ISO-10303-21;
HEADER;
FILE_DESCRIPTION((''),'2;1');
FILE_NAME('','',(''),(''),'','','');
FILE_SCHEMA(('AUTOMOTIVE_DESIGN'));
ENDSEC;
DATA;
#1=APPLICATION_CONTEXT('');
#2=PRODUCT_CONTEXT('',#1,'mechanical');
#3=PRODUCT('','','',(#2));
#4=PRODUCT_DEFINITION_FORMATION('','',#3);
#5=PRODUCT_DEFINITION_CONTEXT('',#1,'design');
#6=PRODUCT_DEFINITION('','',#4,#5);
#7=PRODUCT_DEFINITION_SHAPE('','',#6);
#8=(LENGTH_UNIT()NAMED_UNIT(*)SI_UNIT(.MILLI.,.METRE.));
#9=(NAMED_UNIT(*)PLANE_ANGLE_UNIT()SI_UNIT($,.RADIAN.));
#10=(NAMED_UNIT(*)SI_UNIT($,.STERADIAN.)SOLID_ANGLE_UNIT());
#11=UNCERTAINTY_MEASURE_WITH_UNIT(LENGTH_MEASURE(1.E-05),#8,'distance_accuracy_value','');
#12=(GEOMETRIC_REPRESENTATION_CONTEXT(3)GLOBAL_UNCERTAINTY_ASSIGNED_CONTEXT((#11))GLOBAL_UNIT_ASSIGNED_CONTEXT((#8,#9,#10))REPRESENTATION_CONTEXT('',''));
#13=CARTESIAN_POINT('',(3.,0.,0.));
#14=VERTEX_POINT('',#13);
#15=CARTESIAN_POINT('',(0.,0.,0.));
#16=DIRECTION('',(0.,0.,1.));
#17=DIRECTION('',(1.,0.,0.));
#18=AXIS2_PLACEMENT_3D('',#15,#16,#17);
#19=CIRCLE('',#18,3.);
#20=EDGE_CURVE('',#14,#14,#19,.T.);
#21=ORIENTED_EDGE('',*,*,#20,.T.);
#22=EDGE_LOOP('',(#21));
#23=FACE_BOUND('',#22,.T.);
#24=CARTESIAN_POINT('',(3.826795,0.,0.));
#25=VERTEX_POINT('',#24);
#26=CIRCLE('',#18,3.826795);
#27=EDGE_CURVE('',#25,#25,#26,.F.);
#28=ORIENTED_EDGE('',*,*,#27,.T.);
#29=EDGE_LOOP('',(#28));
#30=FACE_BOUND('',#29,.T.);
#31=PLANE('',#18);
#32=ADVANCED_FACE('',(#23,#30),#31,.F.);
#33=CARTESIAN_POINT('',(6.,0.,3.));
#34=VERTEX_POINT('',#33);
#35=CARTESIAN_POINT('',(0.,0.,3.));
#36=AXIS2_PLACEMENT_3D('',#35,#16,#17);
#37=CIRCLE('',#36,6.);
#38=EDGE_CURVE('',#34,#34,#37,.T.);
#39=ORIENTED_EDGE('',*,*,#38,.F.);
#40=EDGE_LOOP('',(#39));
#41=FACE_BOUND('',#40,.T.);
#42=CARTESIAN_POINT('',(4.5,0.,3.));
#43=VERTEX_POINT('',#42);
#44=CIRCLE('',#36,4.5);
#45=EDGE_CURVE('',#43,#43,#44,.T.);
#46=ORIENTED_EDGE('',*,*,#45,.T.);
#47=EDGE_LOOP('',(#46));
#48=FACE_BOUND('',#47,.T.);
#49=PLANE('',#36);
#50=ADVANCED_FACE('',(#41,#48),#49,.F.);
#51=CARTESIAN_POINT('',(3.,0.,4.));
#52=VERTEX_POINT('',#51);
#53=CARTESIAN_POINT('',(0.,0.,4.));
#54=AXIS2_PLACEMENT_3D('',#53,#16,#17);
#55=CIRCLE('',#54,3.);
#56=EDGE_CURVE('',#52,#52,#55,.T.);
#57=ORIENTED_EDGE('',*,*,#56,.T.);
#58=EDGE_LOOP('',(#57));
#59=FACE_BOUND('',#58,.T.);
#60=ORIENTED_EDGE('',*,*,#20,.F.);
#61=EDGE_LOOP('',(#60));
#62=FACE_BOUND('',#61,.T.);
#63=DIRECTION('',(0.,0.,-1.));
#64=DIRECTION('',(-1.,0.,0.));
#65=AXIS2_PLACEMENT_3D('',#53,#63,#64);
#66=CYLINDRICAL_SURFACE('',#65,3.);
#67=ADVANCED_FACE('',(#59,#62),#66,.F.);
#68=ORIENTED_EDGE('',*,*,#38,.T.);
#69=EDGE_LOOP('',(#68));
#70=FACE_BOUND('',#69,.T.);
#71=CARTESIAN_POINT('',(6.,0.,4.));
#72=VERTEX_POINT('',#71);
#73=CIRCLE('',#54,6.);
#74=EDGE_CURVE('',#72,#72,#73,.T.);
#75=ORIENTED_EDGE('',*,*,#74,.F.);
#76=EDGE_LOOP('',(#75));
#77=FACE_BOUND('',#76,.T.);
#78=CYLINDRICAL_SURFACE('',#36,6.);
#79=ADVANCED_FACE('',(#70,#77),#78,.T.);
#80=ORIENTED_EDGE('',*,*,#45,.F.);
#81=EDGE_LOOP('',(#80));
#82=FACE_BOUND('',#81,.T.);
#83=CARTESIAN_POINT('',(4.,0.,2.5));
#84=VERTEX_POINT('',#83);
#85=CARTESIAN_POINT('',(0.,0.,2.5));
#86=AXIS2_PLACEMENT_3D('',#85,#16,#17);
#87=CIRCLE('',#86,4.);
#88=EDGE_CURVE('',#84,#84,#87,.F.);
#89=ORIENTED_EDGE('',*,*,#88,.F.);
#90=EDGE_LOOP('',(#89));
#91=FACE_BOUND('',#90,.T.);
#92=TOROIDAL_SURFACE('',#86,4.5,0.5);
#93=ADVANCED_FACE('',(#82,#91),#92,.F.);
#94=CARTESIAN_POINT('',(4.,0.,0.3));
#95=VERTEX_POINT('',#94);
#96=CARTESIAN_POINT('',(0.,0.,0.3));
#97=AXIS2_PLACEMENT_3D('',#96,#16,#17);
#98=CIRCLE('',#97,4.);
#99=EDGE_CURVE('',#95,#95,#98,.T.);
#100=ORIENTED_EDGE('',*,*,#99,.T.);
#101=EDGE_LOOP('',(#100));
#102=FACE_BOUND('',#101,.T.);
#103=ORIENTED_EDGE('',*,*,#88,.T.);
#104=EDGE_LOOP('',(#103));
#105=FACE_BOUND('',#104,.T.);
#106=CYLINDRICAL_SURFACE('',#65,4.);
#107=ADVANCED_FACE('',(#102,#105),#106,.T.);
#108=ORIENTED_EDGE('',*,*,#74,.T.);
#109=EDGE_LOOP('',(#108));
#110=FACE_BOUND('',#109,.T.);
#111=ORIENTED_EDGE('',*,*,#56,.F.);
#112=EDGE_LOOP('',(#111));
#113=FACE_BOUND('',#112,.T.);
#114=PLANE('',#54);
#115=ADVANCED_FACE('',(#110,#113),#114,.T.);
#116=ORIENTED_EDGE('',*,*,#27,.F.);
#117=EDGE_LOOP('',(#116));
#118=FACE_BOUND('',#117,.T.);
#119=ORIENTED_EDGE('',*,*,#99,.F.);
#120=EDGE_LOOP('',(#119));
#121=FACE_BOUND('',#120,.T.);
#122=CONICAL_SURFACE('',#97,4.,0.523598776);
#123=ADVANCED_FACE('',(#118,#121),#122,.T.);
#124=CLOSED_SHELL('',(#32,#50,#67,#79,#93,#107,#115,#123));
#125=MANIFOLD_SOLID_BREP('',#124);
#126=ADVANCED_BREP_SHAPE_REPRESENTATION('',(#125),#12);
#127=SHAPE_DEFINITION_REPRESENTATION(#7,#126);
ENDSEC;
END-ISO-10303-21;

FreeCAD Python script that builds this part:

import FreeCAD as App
import Part
import Sketcher
from FreeCAD import Vector


def edges_at(feature, points):
    """Names of the edges that pass closest to the given points."""
    edges = feature.Shape.Edges
    near = lambda p: min(range(len(edges)), key=lambda i: edges[i].distToShape(Part.Vertex(*p))[0])
    return sorted({f"Edge{near(p) + 1}" for p in points})

doc = App.newDocument("Part")
params = doc.addObject("Spreadsheet::Sheet", "Params")
for row, (alias, value) in enumerate([
    ("sketch1_diameter", "8 mm"),
    ("sketch1_diameter2", "6 mm"),
    ("pad1_length", "4 mm"),
    ("sketch2_diameter", "12 mm"),
    ("sketch2_diameter2", "6 mm"),
    ("pad2_length", "1 mm"),
    ("fillet_radius", "0.5 mm"),
    ("chamfer_size", "0.3 mm"),
    ("chamfer_size2", "0.173205 mm"),
], start=1):
    params.set(f"A{row}", alias)
    params.set(f"B{row}", "=" + value)
    params.setAlias(f"B{row}", alias)

body = doc.addObject("PartDesign::Body", "Body")

# Sketch on XY plane
sketch1 = body.newObject("Sketcher::SketchObject", "Sketch")
sketch1.AttachmentSupport = (doc.getObject("XY_Plane"), [""])
sketch1.MapMode = "FlatFace"
sketch1.addGeometry([
    Part.Circle(Vector(0, 0, 0), Vector(0, 0, 1), 4),
    Part.Circle(Vector(0, 0, 0), Vector(0, 0, 1), 3),
], False)
sketch1.addConstraint([
    Sketcher.Constraint("Coincident", 0, 3, -1, 1),
    Sketcher.Constraint("Coincident", 1, 3, -1, 1),
    Sketcher.Constraint("Diameter", 0, 8.0),
    Sketcher.Constraint("Diameter", 1, 6.0),
])
sketch1.setExpression("Constraints[2]", "Params.sketch1_diameter")
sketch1.setExpression("Constraints[3]", "Params.sketch1_diameter2")
pad1 = body.newObject("PartDesign::Pad", "Pad")
pad1.Profile = sketch1
pad1.setExpression("Length", "Params.pad1_length")

# Sketch on XY plane
sketch2 = body.newObject("Sketcher::SketchObject", "Sketch001")
sketch2.AttachmentSupport = (doc.getObject("XY_Plane"), [""])
sketch2.MapMode = "FlatFace"
sketch2.AttachmentOffset = App.Placement(Vector(0, 0, 4), App.Rotation())
sketch2.addGeometry([
    Part.Circle(Vector(0, 0, 0), Vector(0, 0, 1), 6),
    Part.Circle(Vector(0, 0, 0), Vector(0, 0, 1), 3),
], False)
sketch2.addConstraint([
    Sketcher.Constraint("Coincident", 0, 3, -1, 1),
    Sketcher.Constraint("Coincident", 1, 3, -1, 1),
    Sketcher.Constraint("Diameter", 0, 12.0),
    Sketcher.Constraint("Diameter", 1, 6.0),
])
sketch2.setExpression("Constraints[2]", "Params.sketch2_diameter")
sketch2.setExpression("Constraints[3]", "Params.sketch2_diameter2")
pad2 = body.newObject("PartDesign::Pad", "Pad001")
pad2.Profile = sketch2
pad2.setExpression("Length", "Params.pad2_length")
pad2.Reversed = True
doc.recompute()

fillet = body.newObject("PartDesign::Fillet", "Fillet")
fillet.Base = (pad2, edges_at(pad2, [(-4, 0, 3)]))
fillet.setExpression("Radius", "Params.fillet_radius")
doc.recompute()

chamfer = body.newObject("PartDesign::Chamfer", "Chamfer")
chamfer.Base = (fillet, edges_at(fillet, [(-4, 0, 0)]))
chamfer.ChamferType = "Two distances"
chamfer.setExpression("Size", "Params.chamfer_size")
chamfer.setExpression("Size2", "Params.chamfer_size2")

doc.recompute()
